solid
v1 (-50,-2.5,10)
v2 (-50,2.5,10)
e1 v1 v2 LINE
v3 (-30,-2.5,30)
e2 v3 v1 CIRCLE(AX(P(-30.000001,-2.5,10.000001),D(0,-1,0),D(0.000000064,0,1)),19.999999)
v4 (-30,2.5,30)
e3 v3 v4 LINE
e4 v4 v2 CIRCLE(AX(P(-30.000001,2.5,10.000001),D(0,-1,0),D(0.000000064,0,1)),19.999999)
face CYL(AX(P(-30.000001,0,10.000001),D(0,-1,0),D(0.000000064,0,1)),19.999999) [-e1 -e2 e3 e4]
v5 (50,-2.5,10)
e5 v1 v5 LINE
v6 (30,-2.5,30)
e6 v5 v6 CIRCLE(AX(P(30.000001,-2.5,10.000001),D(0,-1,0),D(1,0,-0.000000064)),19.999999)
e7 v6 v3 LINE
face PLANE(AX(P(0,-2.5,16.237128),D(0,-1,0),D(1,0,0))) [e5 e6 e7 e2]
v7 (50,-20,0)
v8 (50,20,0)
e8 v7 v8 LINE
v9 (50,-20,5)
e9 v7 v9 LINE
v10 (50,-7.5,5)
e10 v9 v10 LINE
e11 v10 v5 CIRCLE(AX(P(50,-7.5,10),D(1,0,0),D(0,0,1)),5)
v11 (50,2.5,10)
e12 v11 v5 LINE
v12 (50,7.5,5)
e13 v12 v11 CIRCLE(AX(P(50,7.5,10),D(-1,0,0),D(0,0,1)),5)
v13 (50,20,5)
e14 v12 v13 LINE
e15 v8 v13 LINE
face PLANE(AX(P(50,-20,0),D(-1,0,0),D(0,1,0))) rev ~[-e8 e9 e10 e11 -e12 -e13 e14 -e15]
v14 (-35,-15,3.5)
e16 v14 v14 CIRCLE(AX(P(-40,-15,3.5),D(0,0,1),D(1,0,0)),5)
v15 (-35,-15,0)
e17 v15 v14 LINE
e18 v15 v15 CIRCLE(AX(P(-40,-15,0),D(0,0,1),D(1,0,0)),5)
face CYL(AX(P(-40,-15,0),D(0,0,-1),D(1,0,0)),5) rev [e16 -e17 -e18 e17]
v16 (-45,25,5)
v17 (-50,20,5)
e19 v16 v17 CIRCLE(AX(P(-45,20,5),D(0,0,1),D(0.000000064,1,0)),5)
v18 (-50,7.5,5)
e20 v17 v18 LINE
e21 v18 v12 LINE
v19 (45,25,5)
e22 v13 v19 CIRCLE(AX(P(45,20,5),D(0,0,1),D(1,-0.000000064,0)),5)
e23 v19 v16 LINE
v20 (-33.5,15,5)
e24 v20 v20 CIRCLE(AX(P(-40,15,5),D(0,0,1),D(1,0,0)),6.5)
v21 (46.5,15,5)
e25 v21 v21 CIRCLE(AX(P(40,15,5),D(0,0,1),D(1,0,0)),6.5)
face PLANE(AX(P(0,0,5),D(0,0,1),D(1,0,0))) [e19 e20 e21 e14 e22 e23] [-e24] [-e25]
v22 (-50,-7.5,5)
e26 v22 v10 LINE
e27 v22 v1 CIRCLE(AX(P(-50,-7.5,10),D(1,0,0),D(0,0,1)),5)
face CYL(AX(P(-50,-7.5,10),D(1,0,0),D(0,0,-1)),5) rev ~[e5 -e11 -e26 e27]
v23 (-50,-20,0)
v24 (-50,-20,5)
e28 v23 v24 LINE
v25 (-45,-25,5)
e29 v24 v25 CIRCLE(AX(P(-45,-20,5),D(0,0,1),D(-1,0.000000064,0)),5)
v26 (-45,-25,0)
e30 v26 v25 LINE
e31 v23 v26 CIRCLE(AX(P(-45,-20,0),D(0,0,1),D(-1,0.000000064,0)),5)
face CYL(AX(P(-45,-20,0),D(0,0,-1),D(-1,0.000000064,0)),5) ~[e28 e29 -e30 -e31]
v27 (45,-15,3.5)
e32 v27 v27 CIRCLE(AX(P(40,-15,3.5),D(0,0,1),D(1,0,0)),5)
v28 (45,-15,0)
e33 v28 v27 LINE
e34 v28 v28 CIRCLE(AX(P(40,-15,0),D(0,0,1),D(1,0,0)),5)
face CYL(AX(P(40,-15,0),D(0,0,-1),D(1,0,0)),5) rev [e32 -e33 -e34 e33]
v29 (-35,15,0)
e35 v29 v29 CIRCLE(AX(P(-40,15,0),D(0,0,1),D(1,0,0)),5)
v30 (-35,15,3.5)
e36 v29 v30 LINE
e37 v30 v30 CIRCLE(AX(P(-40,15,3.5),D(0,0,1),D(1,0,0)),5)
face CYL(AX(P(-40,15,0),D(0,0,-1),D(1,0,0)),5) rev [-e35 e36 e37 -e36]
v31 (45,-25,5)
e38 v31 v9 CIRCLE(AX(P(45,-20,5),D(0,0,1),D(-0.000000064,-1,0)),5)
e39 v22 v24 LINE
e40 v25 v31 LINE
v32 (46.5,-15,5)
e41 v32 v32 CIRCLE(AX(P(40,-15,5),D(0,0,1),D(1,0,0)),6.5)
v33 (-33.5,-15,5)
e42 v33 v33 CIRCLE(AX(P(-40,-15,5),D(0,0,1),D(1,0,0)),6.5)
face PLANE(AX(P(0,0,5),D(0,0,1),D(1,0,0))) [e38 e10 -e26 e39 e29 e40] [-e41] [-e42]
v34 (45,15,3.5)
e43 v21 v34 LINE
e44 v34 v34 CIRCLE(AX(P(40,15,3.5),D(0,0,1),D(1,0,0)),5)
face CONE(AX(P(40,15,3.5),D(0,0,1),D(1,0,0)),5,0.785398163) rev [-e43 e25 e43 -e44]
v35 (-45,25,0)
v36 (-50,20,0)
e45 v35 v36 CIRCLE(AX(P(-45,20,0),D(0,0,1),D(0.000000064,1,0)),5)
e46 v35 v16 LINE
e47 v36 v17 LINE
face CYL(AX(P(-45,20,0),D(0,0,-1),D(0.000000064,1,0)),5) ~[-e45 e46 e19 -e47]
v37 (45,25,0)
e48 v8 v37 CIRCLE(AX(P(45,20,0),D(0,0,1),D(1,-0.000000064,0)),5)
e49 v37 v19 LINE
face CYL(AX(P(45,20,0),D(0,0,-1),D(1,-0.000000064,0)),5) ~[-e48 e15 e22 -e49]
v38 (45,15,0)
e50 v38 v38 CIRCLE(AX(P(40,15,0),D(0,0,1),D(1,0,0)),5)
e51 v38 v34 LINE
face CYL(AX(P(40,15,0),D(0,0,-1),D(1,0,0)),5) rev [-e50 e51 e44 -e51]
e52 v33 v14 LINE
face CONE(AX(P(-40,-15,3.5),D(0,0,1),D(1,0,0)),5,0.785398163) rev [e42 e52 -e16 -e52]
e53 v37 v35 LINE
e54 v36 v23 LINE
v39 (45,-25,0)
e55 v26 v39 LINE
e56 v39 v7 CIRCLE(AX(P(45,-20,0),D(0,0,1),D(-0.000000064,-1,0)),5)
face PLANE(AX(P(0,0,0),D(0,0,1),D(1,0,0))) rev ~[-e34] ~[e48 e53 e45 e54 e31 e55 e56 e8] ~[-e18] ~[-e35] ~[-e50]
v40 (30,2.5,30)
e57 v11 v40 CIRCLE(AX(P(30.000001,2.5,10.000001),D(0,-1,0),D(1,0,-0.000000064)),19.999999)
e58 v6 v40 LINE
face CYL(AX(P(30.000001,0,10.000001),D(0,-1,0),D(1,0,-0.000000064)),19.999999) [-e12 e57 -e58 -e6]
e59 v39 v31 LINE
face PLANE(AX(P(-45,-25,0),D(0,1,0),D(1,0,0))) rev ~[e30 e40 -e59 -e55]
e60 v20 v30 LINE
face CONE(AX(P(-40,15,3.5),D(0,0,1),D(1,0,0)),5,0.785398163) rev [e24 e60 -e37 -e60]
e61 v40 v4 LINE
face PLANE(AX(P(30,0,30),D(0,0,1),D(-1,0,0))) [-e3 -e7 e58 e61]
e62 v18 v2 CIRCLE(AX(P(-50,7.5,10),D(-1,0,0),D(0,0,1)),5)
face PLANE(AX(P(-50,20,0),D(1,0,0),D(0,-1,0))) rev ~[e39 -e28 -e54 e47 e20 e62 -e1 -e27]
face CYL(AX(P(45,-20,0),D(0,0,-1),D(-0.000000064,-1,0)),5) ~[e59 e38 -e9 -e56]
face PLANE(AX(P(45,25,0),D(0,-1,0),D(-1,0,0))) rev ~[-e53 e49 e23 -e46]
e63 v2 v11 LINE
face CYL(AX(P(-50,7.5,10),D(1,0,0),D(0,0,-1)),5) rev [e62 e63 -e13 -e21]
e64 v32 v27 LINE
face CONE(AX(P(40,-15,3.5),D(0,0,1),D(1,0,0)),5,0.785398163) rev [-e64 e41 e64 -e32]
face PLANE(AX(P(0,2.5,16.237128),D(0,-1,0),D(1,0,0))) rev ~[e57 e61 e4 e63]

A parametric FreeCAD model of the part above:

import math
import FreeCAD as App
import Part
import Sketcher
Q = App.Units.Quantity


def edges_at(feature, points):
    """Names of the edges that pass closest to the given points."""
    edges = feature.Shape.Edges
    near = lambda p: min(range(len(edges)), key=lambda i: edges[i].distToShape(Part.Vertex(*p))[0])
    return sorted({f"Edge{near(p) + 1}" for p in points})

doc = App.newDocument("Part")
body = doc.addObject("PartDesign::Body", "Body")

# Sketch on XY plane
sketch1 = body.newObject("Sketcher::SketchObject", "Sketch")
sketch1.AttachmentSupport = (doc.getObject("XY_Plane"), [""])
sketch1.MapMode = "FlatFace"
sketch1.addGeometry([
    Part.LineSegment(App.Vector(-50, 20, 0), App.Vector(-50, -20, 0)),  # 0
    Part.ArcOfCircle(Part.Circle(App.Vector(-45, -20, 0), App.Vector(0, 0, 1), 5), math.radians(180), math.radians(270)),  # 1
    Part.LineSegment(App.Vector(-45, -25, 0), App.Vector(45, -25, 0)),  # 2
    Part.ArcOfCircle(Part.Circle(App.Vector(45, -20, 0), App.Vector(0, 0, 1), 5), math.radians(-90), math.radians(0)),  # 3
    Part.LineSegment(App.Vector(50, -20, 0), App.Vector(50, 20, 0)),  # 4
    Part.ArcOfCircle(Part.Circle(App.Vector(45, 20, 0), App.Vector(0, 0, 1), 5), math.radians(0), math.radians(90)),  # 5
    Part.LineSegment(App.Vector(45, 25, 0), App.Vector(-45, 25, 0)),  # 6
    Part.ArcOfCircle(Part.Circle(App.Vector(-45, 20, 0), App.Vector(0, 0, 1), 5), math.radians(90), math.radians(180)),  # 7
    Part.Circle(App.Vector(-40, -15, 0), App.Vector(0, 0, 1), 5),  # 8
    Part.Circle(App.Vector(40, -15, 0), App.Vector(0, 0, 1), 5),  # 9
    Part.Circle(App.Vector(-40, 15, 0), App.Vector(0, 0, 1), 5),  # 10
    Part.Circle(App.Vector(40, 15, 0), App.Vector(0, 0, 1), 5),  # 11
], False)
sketch1.addConstraint([
    Sketcher.Constraint("Tangent", 0, 2, 1, 1),
    Sketcher.Constraint("Tangent", 1, 2, 2, 1),
    Sketcher.Constraint("Tangent", 2, 2, 3, 1),
    Sketcher.Constraint("Tangent", 3, 2, 4, 1),
    Sketcher.Constraint("Tangent", 4, 2, 5, 1),
    Sketcher.Constraint("Tangent", 5, 2, 6, 1),
    Sketcher.Constraint("Tangent", 6, 2, 7, 1),
    Sketcher.Constraint("Tangent", 7, 2, 0, 1),
    Sketcher.Constraint("Vertical", 0),
    Sketcher.Constraint("Horizontal", 2),
    Sketcher.Constraint("Vertical", 4),
    Sketcher.Constraint("Horizontal", 6),
    Sketcher.Constraint("Equal", 1, 3),
    Sketcher.Constraint("Equal", 3, 5),
    Sketcher.Constraint("Equal", 5, 7),
    Sketcher.Constraint("Equal", 7, 8),
    Sketcher.Constraint("Equal", 8, 9),
    Sketcher.Constraint("Equal", 9, 10),
    Sketcher.Constraint("Equal", 10, 11),
    Sketcher.Constraint("Symmetric", 1, 3, 5, 3, -1, 1),
    Sketcher.Constraint("Symmetric", 9, 3, 10, 3, -1, 1),
    Sketcher.Constraint("Symmetric", 8, 3, 11, 3, -1, 1),
    Sketcher.Constraint("Symmetric", 8, 3, 9, 3, -2),
    Sketcher.Constraint("Diameter", 8, Q("10 mm")),
    Sketcher.Constraint("DistanceX", 2, 1, 2, 2, Q("90 mm")),
    Sketcher.Constraint("DistanceY", 0, 2, 0, 1, Q("40 mm")),
    Sketcher.Constraint("DistanceX", 8, 3, -1, 1, Q("40 mm")),
    Sketcher.Constraint("DistanceY", 8, 3, -1, 1, Q("15 mm")),
])
pad1 = body.newObject("PartDesign::Pad", "Pad")
pad1.Profile = sketch1
pad1.Length = 5

# Sketch on XZ plane
sketch2 = body.newObject("Sketcher::SketchObject", "Sketch001")
sketch2.AttachmentSupport = (doc.getObject("XZ_Plane"), [""])
sketch2.MapMode = "FlatFace"
sketch2.addGeometry([
    Part.LineSegment(App.Vector(-50, 10, 0), App.Vector(-50, 5, 0)),  # 0
    Part.LineSegment(App.Vector(-50, 5, 0), App.Vector(50, 5, 0)),  # 1
    Part.LineSegment(App.Vector(50, 5, 0), App.Vector(50, 10, 0)),  # 2
    Part.ArcOfCircle(Part.Circle(App.Vector(30, 10, 0), App.Vector(0, 0, 1), 20), math.radians(0), math.radians(90)),  # 3
    Part.LineSegment(App.Vector(30, 30, 0), App.Vector(-30, 30, 0)),  # 4
    Part.ArcOfCircle(Part.Circle(App.Vector(-30, 10, 0), App.Vector(0, 0, 1), 20), math.radians(90), math.radians(180)),  # 5
], False)
sketch2.addConstraint([
    Sketcher.Constraint("Coincident", 0, 2, 1, 1),
    Sketcher.Constraint("Coincident", 1, 2, 2, 1),
    Sketcher.Constraint("Tangent", 2, 2, 3, 1),
    Sketcher.Constraint("Tangent", 3, 2, 4, 1),
    Sketcher.Constraint("Tangent", 4, 2, 5, 1),
    Sketcher.Constraint("Tangent", 5, 2, 0, 1),
    Sketcher.Constraint("Vertical", 0),
    Sketcher.Constraint("Horizontal", 1),
    Sketcher.Constraint("Vertical", 2),
    Sketcher.Constraint("Horizontal", 4),
    Sketcher.Constraint("Equal", 3, 5),
    Sketcher.Constraint("Radius", 3, Q("19.999999 mm")),
    Sketcher.Constraint("DistanceX", 1, 1, 1, 2, Q("100 mm")),
    Sketcher.Constraint("DistanceY", 0, 2, 0, 1, Q("5 mm")),
    Sketcher.Constraint("DistanceX", -1, 1, 3, 3, Q("30.000001 mm")),
    Sketcher.Constraint("DistanceY", -1, 1, 3, 3, Q("10.000001 mm")),
])
pad2 = body.newObject("PartDesign::Pad", "Pad001")
pad2.Profile = sketch2
pad2.Length = 5
pad2.Midplane = True
doc.recompute()

fillet = body.newObject("PartDesign::Fillet", "Fillet")
fillet.Base = (pad2, edges_at(pad2, [(0, -2.5, 5), (0, 2.5, 5)]))
fillet.Radius = 5
doc.recompute()

chamfer = body.newObject("PartDesign::Chamfer", "Chamfer")
chamfer.Base = (fillet, edges_at(fillet, [
    (35, 15, 5),
    (-45, 15, 5),
    (35, -15, 5),
    (-45, -15, 5),
]))
chamfer.Size = 1.5

doc.recompute()
